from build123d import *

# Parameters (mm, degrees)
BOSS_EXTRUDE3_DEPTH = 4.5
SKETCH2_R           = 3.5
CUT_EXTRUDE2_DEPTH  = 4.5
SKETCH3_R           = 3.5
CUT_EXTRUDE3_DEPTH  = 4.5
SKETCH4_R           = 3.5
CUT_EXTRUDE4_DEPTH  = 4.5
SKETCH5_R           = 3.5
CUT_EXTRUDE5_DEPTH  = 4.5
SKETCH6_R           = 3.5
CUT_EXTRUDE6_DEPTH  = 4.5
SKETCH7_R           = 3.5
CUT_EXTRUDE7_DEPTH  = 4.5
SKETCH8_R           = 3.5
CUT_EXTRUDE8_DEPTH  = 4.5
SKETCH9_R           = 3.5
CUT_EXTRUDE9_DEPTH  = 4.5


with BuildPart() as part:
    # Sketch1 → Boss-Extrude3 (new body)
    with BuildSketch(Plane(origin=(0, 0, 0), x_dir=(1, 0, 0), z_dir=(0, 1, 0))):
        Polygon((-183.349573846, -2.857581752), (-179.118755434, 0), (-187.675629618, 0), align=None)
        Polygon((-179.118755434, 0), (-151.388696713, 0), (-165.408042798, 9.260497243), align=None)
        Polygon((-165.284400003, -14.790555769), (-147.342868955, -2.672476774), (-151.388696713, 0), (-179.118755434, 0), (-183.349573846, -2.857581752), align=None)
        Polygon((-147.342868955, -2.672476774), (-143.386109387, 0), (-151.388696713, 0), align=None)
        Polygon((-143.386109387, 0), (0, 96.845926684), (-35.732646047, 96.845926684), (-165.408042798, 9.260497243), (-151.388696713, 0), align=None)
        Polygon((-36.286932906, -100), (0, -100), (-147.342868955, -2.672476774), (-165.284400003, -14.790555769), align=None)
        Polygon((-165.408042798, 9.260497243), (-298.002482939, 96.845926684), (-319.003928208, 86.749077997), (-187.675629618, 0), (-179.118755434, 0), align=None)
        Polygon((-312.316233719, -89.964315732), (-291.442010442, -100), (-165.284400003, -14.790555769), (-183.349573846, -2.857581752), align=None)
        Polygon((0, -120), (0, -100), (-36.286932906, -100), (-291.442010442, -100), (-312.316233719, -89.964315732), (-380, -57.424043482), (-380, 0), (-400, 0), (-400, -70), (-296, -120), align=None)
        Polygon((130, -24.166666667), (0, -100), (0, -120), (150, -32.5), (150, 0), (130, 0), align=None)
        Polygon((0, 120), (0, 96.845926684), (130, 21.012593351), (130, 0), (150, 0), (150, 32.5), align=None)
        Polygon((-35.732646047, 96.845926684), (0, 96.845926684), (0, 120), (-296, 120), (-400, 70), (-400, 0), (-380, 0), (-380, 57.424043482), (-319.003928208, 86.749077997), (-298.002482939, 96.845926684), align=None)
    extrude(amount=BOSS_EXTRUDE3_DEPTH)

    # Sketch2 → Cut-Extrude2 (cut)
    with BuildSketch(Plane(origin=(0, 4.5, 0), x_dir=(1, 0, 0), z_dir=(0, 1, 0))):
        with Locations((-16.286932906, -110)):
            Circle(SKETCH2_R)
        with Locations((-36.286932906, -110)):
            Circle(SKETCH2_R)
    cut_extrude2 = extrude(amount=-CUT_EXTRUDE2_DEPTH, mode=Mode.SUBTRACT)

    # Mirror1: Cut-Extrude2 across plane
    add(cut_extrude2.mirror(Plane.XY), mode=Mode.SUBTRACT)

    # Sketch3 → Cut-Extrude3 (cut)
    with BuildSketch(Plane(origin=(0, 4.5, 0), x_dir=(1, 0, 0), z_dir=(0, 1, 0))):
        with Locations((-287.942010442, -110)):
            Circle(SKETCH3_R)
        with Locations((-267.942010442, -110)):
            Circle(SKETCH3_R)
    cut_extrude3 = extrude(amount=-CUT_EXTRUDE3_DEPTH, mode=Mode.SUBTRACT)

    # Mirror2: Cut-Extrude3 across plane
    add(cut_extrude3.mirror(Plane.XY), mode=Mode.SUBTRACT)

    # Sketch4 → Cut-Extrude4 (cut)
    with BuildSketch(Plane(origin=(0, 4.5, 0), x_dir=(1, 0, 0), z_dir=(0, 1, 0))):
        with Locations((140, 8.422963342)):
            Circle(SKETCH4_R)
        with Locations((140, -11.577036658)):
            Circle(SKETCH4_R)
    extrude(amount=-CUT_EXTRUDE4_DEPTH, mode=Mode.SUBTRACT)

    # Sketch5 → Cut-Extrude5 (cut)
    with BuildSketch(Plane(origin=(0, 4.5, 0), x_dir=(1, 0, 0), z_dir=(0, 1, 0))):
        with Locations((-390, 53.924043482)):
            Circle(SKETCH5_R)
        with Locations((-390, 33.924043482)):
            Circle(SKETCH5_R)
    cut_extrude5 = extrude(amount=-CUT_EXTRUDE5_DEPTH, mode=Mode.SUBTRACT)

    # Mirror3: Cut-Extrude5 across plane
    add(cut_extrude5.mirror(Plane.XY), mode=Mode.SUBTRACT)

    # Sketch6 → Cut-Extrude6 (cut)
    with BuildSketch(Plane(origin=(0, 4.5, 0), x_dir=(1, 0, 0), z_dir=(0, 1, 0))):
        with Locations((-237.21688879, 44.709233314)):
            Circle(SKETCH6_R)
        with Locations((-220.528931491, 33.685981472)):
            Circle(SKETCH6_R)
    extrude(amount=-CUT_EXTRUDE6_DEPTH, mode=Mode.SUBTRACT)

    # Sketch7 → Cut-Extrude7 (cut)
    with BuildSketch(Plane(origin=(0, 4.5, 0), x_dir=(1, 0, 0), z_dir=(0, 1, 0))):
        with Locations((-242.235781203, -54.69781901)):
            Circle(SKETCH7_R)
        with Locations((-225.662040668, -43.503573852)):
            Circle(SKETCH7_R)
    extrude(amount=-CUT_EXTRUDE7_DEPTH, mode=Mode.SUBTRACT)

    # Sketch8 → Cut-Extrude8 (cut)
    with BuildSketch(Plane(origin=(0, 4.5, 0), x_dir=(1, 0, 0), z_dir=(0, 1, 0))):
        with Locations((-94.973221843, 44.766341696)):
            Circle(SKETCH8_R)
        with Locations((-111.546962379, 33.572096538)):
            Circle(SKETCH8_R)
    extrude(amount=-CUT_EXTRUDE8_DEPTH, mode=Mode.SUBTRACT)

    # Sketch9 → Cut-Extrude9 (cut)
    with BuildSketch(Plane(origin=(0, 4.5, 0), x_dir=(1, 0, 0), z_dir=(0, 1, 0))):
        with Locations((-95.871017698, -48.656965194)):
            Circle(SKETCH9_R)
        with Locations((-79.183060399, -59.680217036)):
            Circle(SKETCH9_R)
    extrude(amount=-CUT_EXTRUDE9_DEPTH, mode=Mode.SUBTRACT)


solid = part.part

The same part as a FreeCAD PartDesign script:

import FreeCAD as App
import Part
import Sketcher
from FreeCAD import Vector
Q = App.Units.Quantity


def add_polygon(sketch, points):
    """Adds a closed chain of lines whose ends are joined by coincident constraints."""
    first, n = sketch.GeometryCount, len(points)
    for a, b in zip(points, points[1:] + points[:1]):
        sketch.addGeometry(Part.LineSegment(App.Vector(*a, 0), App.Vector(*b, 0)), False)
    for i in range(n):
        sketch.addConstraint(Sketcher.Constraint("Coincident", first + i, 2, first + (i + 1) % n, 1))

doc = App.newDocument("Part")
body = doc.addObject("PartDesign::Body", "Body")

# Sketch on XZ plane
sketch1 = doc.addObject("Sketcher::SketchObject", "Sketch")
body.addObject(sketch1)
sketch1.AttachmentSupport = (doc.XZ_Plane, [""])
sketch1.MapMode = "FlatFace"
add_polygon(sketch1, [(150, -32.5), (0, -120), (-296, -120), (-400, -70), (-400, 70), (-296, 120), (0, 120), (150, 32.5)])  # lines 0-7
add_polygon(sketch1, [(-380, 57.424043), (-380, -57.424043), (-319.003928, -86.749078), (-187.67563, 0), (-183.349574, 2.857582), (-312.316234, 89.964316)])  # lines 8-13
add_polygon(sketch1, [(-165.408043, -9.260497), (-298.002483, -96.845927), (-35.732646, -96.845927)])  # lines 14-16
add_polygon(sketch1, [(-291.44201, 100), (-165.2844, 14.790556), (-36.286933, 100)])  # lines 17-19
add_polygon(sketch1, [(-143.386109, 0), (0, -96.845927), (130, -21.012593), (130, 24.166667), (0, 100), (-147.342869, 2.672477)])  # lines 20-25
sketch1.addConstraint([
    Sketcher.Constraint("Horizontal", 1),
    Sketcher.Constraint("Vertical", 3),
    Sketcher.Constraint("Horizontal", 5),
    Sketcher.Constraint("Vertical", 7),
    Sketcher.Constraint("Vertical", 8),
    Sketcher.Constraint("Horizontal", 15),
    Sketcher.Constraint("Horizontal", 19),
    Sketcher.Constraint("Vertical", 22),
    Sketcher.Constraint("Symmetric", 0, 2, 5, 2, -1, 1),
    Sketcher.Constraint("PointOnObject", 0, 2, -2),
    Sketcher.Constraint("PointOnObject", 10, 2, -1),
    Sketcher.Constraint("PointOnObject", 20, 2, -2),
    Sketcher.Constraint("PointOnObject", 23, 2, -2),
    Sketcher.Constraint("PointOnObject", 25, 2, -1),
    Sketcher.Constraint("Parallel", 2, 9),
    Sketcher.Constraint("Parallel", 10, 11),
    Sketcher.Constraint("Parallel", 4, 13),
    Sketcher.Constraint("Parallel", 11, 14),
    Sketcher.Constraint("Parallel", 12, 16),
    Sketcher.Constraint("Parallel", 16, 17),
    Sketcher.Constraint("Parallel", 14, 18),
    Sketcher.Constraint("Parallel", 17, 20),
    Sketcher.Constraint("Parallel", 0, 21),
    Sketcher.Constraint("Parallel", 6, 23),
    Sketcher.Constraint("Parallel", 18, 24),
    Sketcher.Constraint("Parallel", 20, 25),
    Sketcher.Constraint("Horizontal", 15, 2, 20, 2),
    Sketcher.Constraint("Horizontal", 19, 2, 23, 2),
    Sketcher.Constraint("Vertical", 1, 2, 4, 2),
    Sketcher.Constraint("Equal", 2, 4),
    Sketcher.Constraint("Equal", 0, 6),
    Sketcher.Constraint("DistanceX", 1, 2, 1, 1, Q("296 mm")),
    Sketcher.Constraint("DistanceY", 3, 1, 3, 2, Q("140 mm")),
    Sketcher.Constraint("DistanceY", 7, 2, 7, 1, Q("65 mm")),
    Sketcher.Constraint("DistanceY", 0, 2, -1, 1, Q("120 mm")),
    Sketcher.Constraint("DistanceX", 2, 2, -1, 1, Q("400 mm")),
    Sketcher.Constraint("DistanceX", -1, 1, 6, 2, Q("150 mm")),
    Sketcher.Constraint("DistanceX", 8, 2, -1, 1, Q("380 mm")),
    Sketcher.Constraint("DistanceY", -1, 1, 18, 2, Q("100 mm")),
    Sketcher.Constraint("DistanceX", -1, 1, 21, 2, Q("130 mm")),
    Sketcher.Constraint("Distance", 10, Q("157.392899 mm")),
    Sketcher.Constraint("DistanceY", 22, 1, 22, 2, Q("45.17926 mm")),
    Sketcher.Constraint("DistanceX", 17, 2, -1, 1, Q("165.2844 mm")),
    Sketcher.Constraint("DistanceX", 9, 2, 10, 2, Q("131.328299 mm")),
    Sketcher.Constraint("Distance", 9, Q("67.679232 mm")),
    Sketcher.Constraint("Distance", 14, Q("158.91033 mm")),
    Sketcher.Constraint("Distance", 18, Q("154.599469 mm")),
    Sketcher.Constraint("Distance", 20, Q("173.028061 mm")),
    Sketcher.Constraint("DistanceY", 8, 2, 8, 1, Q("114.848087 mm")),
    Sketcher.Constraint("DistanceY", -1, 1, 11, 2, Q("2.857582 mm")),
    Sketcher.Constraint("DistanceX", 11, 2, 16, 2, Q("17.941531 mm")),
])
pad1 = doc.addObject("PartDesign::Pad", "Pad")
body.addObject(pad1)
pad1.Profile = sketch1
pad1.Length = 4.5
pad1.Reversed = True

# Sketch on XZ plane
sketch2 = doc.addObject("Sketcher::SketchObject", "Sketch001")
body.addObject(sketch2)
sketch2.AttachmentSupport = (doc.XZ_Plane, [""])
sketch2.MapMode = "FlatFace"
sketch2.AttachmentOffset = App.Placement(Vector(0, 0, -4.5), App.Rotation())
sketch2.addGeometry([
    Part.Circle(Vector(-16.286933, 110, 0), Vector(0, 0, 1), 3.5),
    Part.Circle(Vector(-36.286933, 110, 0), Vector(0, 0, 1), 3.5),
], False)
sketch2.addConstraint([
    Sketcher.Constraint("Equal", 0, 1),
    Sketcher.Constraint("Horizontal", 0, 3, 1, 3),
    Sketcher.Constraint("Diameter", 0, Q("7 mm")),
    Sketcher.Constraint("DistanceY", -1, 1, 0, 3, Q("110 mm")),
    Sketcher.Constraint("DistanceX", 1, 3, 0, 3, Q("20 mm")),
    Sketcher.Constraint("DistanceX", 0, 3, -1, 1, Q("16.286933 mm")),
])
pocket1 = doc.addObject("PartDesign::Pocket", "Pocket")
body.addObject(pocket1)
pocket1.Profile = sketch2
pocket1.Length = 4.5
pocket1.Reversed = True
doc.recompute()

mirrored = doc.addObject("PartDesign::Mirrored", "Mirrored")
body.addObject(mirrored)
mirrored.Originals = [pocket1]
mirrored.MirrorPlane = (doc.XY_Plane, [""])
body.Tip = mirrored

# Sketch on XZ plane
sketch3 = doc.addObject("Sketcher::SketchObject", "Sketch002")
body.addObject(sketch3)
sketch3.AttachmentSupport = (doc.XZ_Plane, [""])
sketch3.MapMode = "FlatFace"
sketch3.AttachmentOffset = App.Placement(Vector(0, 0, -4.5), App.Rotation())
sketch3.addGeometry([
    Part.Circle(Vector(-287.94201, 110, 0), Vector(0, 0, 1), 3.5),
    Part.Circle(Vector(-267.94201, 110, 0), Vector(0, 0, 1), 3.5),
], False)
sketch3.addConstraint([
    Sketcher.Constraint("Equal", 0, 1),
    Sketcher.Constraint("Horizontal", 0, 3, 1, 3),
    Sketcher.Constraint("Diameter", 0, Q("7 mm")),
    Sketcher.Constraint("DistanceY", -1, 1, 0, 3, Q("110 mm")),
    Sketcher.Constraint("DistanceX", 0, 3, 1, 3, Q("20 mm")),
    Sketcher.Constraint("DistanceX", 0, 3, -1, 1, Q("287.94201 mm")),
])
pocket2 = doc.addObject("PartDesign::Pocket", "Pocket001")
body.addObject(pocket2)
pocket2.Profile = sketch3
pocket2.Length = 4.5
pocket2.Reversed = True
doc.recompute()

mirrored2 = doc.addObject("PartDesign::Mirrored", "Mirrored001")
body.addObject(mirrored2)
mirrored2.Originals = [pocket2]
mirrored2.MirrorPlane = (doc.XY_Plane, [""])
body.Tip = mirrored2

# Sketch on XZ plane
sketch4 = doc.addObject("Sketcher::SketchObject", "Sketch003")
body.addObject(sketch4)
sketch4.AttachmentSupport = (doc.XZ_Plane, [""])
sketch4.MapMode = "FlatFace"
sketch4.AttachmentOffset = App.Placement(Vector(0, 0, -4.5), App.Rotation())
sketch4.addGeometry([
    Part.Circle(Vector(140, -8.422963, 0), Vector(0, 0, 1), 3.5),
    Part.Circle(Vector(140, 11.577037, 0), Vector(0, 0, 1), 3.5),
], False)
sketch4.addConstraint([
    Sketcher.Constraint("Equal", 0, 1),
    Sketcher.Constraint("Vertical", 0, 3, 1, 3),
    Sketcher.Constraint("Diameter", 0, Q("7 mm")),
    Sketcher.Constraint("DistanceX", -1, 1, 0, 3, Q("140 mm")),
    Sketcher.Constraint("DistanceY", 0, 3, 1, 3, Q("20 mm")),
    Sketcher.Constraint("DistanceY", 0, 3, -1, 1, Q("8.422963 mm")),
])
pocket3 = doc.addObject("PartDesign::Pocket", "Pocket002")
body.addObject(pocket3)
pocket3.Profile = sketch4
pocket3.Length = 4.5
pocket3.Reversed = True

# Sketch on XZ plane
sketch5 = doc.addObject("Sketcher::SketchObject", "Sketch004")
body.addObject(sketch5)
sketch5.AttachmentSupport = (doc.XZ_Plane, [""])
sketch5.MapMode = "FlatFace"
sketch5.AttachmentOffset = App.Placement(Vector(0, 0, -4.5), App.Rotation())
sketch5.addGeometry([
    Part.Circle(Vector(-390, -53.924043, 0), Vector(0, 0, 1), 3.5),
    Part.Circle(Vector(-390, -33.924043, 0), Vector(0, 0, 1), 3.5),
], False)
sketch5.addConstraint([
    Sketcher.Constraint("Equal", 0, 1),
    Sketcher.Constraint("Vertical", 0, 3, 1, 3),
    Sketcher.Constraint("Diameter", 0, Q("7 mm")),
    Sketcher.Constraint("DistanceX", 0, 3, -1, 1, Q("390 mm")),
    Sketcher.Constraint("DistanceY", 0, 3, 1, 3, Q("20 mm")),
    Sketcher.Constraint("DistanceY", 0, 3, -1, 1, Q("53.924043 mm")),
])
pocket4 = doc.addObject("PartDesign::Pocket", "Pocket003")
body.addObject(pocket4)
pocket4.Profile = sketch5
pocket4.Length = 4.5
pocket4.Reversed = True
doc.recompute()

mirrored3 = doc.addObject("PartDesign::Mirrored", "Mirrored002")
body.addObject(mirrored3)
mirrored3.Originals = [pocket4]
mirrored3.MirrorPlane = (doc.XY_Plane, [""])
body.Tip = mirrored3

# Sketch on XZ plane
sketch6 = doc.addObject("Sketcher::SketchObject", "Sketch005")
body.addObject(sketch6)
sketch6.AttachmentSupport = (doc.XZ_Plane, [""])
sketch6.MapMode = "FlatFace"
sketch6.AttachmentOffset = App.Placement(Vector(0, 0, -4.5), App.Rotation())
sketch6.addGeometry([
    Part.Circle(Vector(-237.216889, -44.709233, 0), Vector(0, 0, 1), 3.5),
    Part.Circle(Vector(-220.528931, -33.685981, 0), Vector(0, 0, 1), 3.5),
], False)
sketch6.addConstraint([
    Sketcher.Constraint("Equal", 0, 1),
    Sketcher.Constraint("Diameter", 0, Q("7 mm")),
    Sketcher.Constraint("DistanceX", 0, 3, -1, 1, Q("237.216889 mm")),
    Sketcher.Constraint("DistanceX", 1, 3, -1, 1, Q("220.528931 mm")),
    Sketcher.Constraint("DistanceY", 1, 3, -1, 1, Q("33.685981 mm")),
    Sketcher.Constraint("DistanceY", 0, 3, 1, 3, Q("11.023252 mm")),
])
pocket5 = doc.addObject("PartDesign::Pocket", "Pocket004")
body.addObject(pocket5)
pocket5.Profile = sketch6
pocket5.Length = 4.5
pocket5.Reversed = True

# Sketch on XZ plane
sketch7 = doc.addObject("Sketcher::SketchObject", "Sketch006")
body.addObject(sketch7)
sketch7.AttachmentSupport = (doc.XZ_Plane, [""])
sketch7.MapMode = "FlatFace"
sketch7.AttachmentOffset = App.Placement(Vector(0, 0, -4.5), App.Rotation())
sketch7.addGeometry([
    Part.Circle(Vector(-242.235781, 54.697819, 0), Vector(0, 0, 1), 3.5),
    Part.Circle(Vector(-225.662041, 43.503574, 0), Vector(0, 0, 1), 3.5),
], False)
sketch7.addConstraint([
    Sketcher.Constraint("Equal", 0, 1),
    Sketcher.Constraint("Diameter", 0, Q("7 mm")),
    Sketcher.Constraint("DistanceX", 0, 3, -1, 1, Q("242.235781 mm")),
    Sketcher.Constraint("DistanceY", -1, 1, 0, 3, Q("54.697819 mm")),
    Sketcher.Constraint("DistanceX", 1, 3, -1, 1, Q("225.662041 mm")),
    Sketcher.Constraint("DistanceY", -1, 1, 1, 3, Q("43.503574 mm")),
])
pocket6 = doc.addObject("PartDesign::Pocket", "Pocket005")
body.addObject(pocket6)
pocket6.Profile = sketch7
pocket6.Length = 4.5
pocket6.Reversed = True

# Sketch on XZ plane
sketch8 = doc.addObject("Sketcher::SketchObject", "Sketch007")
body.addObject(sketch8)
sketch8.AttachmentSupport = (doc.XZ_Plane, [""])
sketch8.MapMode = "FlatFace"
sketch8.AttachmentOffset = App.Placement(Vector(0, 0, -4.5), App.Rotation())
sketch8.addGeometry([
    Part.Circle(Vector(-94.973222, -44.766342, 0), Vector(0, 0, 1), 3.5),
    Part.Circle(Vector(-111.546962, -33.572097, 0), Vector(0, 0, 1), 3.5),
], False)
sketch8.addConstraint([
    Sketcher.Constraint("Equal", 0, 1),
    Sketcher.Constraint("Diameter", 0, Q("7 mm")),
    Sketcher.Constraint("DistanceX", 0, 3, -1, 1, Q("94.973222 mm")),
    Sketcher.Constraint("DistanceY", 0, 3, -1, 1, Q("44.766342 mm")),
    Sketcher.Constraint("DistanceX", 1, 3, 0, 3, Q("16.573741 mm")),
    Sketcher.Constraint("DistanceY", 1, 3, -1, 1, Q("33.572097 mm")),
])
pocket7 = doc.addObject("PartDesign::Pocket", "Pocket006")
body.addObject(pocket7)
pocket7.Profile = sketch8
pocket7.Length = 4.5
pocket7.Reversed = True

# Sketch on XZ plane
sketch9 = doc.addObject("Sketcher::SketchObject", "Sketch008")
body.addObject(sketch9)
sketch9.AttachmentSupport = (doc.XZ_Plane, [""])
sketch9.MapMode = "FlatFace"
sketch9.AttachmentOffset = App.Placement(Vector(0, 0, -4.5), App.Rotation())
sketch9.addGeometry([
    Part.Circle(Vector(-95.871018, 48.656965, 0), Vector(0, 0, 1), 3.5),
    Part.Circle(Vector(-79.18306, 59.680217, 0), Vector(0, 0, 1), 3.5),
], False)
sketch9.addConstraint([
    Sketcher.Constraint("Equal", 0, 1),
    Sketcher.Constraint("Diameter", 0, Q("7 mm")),
    Sketcher.Constraint("DistanceX", 1, 3, -1, 1, Q("79.18306 mm")),
    Sketcher.Constraint("DistanceY", 0, 3, 1, 3, Q("11.023252 mm")),
    Sketcher.Constraint("DistanceX", 0, 3, -1, 1, Q("95.871018 mm")),
    Sketcher.Constraint("DistanceY", -1, 1, 0, 3, Q("48.656965 mm")),
])
pocket8 = doc.addObject("PartDesign::Pocket", "Pocket007")
body.addObject(pocket8)
pocket8.Profile = sketch9
pocket8.Length = 4.5
pocket8.Reversed = True

doc.recompute()
